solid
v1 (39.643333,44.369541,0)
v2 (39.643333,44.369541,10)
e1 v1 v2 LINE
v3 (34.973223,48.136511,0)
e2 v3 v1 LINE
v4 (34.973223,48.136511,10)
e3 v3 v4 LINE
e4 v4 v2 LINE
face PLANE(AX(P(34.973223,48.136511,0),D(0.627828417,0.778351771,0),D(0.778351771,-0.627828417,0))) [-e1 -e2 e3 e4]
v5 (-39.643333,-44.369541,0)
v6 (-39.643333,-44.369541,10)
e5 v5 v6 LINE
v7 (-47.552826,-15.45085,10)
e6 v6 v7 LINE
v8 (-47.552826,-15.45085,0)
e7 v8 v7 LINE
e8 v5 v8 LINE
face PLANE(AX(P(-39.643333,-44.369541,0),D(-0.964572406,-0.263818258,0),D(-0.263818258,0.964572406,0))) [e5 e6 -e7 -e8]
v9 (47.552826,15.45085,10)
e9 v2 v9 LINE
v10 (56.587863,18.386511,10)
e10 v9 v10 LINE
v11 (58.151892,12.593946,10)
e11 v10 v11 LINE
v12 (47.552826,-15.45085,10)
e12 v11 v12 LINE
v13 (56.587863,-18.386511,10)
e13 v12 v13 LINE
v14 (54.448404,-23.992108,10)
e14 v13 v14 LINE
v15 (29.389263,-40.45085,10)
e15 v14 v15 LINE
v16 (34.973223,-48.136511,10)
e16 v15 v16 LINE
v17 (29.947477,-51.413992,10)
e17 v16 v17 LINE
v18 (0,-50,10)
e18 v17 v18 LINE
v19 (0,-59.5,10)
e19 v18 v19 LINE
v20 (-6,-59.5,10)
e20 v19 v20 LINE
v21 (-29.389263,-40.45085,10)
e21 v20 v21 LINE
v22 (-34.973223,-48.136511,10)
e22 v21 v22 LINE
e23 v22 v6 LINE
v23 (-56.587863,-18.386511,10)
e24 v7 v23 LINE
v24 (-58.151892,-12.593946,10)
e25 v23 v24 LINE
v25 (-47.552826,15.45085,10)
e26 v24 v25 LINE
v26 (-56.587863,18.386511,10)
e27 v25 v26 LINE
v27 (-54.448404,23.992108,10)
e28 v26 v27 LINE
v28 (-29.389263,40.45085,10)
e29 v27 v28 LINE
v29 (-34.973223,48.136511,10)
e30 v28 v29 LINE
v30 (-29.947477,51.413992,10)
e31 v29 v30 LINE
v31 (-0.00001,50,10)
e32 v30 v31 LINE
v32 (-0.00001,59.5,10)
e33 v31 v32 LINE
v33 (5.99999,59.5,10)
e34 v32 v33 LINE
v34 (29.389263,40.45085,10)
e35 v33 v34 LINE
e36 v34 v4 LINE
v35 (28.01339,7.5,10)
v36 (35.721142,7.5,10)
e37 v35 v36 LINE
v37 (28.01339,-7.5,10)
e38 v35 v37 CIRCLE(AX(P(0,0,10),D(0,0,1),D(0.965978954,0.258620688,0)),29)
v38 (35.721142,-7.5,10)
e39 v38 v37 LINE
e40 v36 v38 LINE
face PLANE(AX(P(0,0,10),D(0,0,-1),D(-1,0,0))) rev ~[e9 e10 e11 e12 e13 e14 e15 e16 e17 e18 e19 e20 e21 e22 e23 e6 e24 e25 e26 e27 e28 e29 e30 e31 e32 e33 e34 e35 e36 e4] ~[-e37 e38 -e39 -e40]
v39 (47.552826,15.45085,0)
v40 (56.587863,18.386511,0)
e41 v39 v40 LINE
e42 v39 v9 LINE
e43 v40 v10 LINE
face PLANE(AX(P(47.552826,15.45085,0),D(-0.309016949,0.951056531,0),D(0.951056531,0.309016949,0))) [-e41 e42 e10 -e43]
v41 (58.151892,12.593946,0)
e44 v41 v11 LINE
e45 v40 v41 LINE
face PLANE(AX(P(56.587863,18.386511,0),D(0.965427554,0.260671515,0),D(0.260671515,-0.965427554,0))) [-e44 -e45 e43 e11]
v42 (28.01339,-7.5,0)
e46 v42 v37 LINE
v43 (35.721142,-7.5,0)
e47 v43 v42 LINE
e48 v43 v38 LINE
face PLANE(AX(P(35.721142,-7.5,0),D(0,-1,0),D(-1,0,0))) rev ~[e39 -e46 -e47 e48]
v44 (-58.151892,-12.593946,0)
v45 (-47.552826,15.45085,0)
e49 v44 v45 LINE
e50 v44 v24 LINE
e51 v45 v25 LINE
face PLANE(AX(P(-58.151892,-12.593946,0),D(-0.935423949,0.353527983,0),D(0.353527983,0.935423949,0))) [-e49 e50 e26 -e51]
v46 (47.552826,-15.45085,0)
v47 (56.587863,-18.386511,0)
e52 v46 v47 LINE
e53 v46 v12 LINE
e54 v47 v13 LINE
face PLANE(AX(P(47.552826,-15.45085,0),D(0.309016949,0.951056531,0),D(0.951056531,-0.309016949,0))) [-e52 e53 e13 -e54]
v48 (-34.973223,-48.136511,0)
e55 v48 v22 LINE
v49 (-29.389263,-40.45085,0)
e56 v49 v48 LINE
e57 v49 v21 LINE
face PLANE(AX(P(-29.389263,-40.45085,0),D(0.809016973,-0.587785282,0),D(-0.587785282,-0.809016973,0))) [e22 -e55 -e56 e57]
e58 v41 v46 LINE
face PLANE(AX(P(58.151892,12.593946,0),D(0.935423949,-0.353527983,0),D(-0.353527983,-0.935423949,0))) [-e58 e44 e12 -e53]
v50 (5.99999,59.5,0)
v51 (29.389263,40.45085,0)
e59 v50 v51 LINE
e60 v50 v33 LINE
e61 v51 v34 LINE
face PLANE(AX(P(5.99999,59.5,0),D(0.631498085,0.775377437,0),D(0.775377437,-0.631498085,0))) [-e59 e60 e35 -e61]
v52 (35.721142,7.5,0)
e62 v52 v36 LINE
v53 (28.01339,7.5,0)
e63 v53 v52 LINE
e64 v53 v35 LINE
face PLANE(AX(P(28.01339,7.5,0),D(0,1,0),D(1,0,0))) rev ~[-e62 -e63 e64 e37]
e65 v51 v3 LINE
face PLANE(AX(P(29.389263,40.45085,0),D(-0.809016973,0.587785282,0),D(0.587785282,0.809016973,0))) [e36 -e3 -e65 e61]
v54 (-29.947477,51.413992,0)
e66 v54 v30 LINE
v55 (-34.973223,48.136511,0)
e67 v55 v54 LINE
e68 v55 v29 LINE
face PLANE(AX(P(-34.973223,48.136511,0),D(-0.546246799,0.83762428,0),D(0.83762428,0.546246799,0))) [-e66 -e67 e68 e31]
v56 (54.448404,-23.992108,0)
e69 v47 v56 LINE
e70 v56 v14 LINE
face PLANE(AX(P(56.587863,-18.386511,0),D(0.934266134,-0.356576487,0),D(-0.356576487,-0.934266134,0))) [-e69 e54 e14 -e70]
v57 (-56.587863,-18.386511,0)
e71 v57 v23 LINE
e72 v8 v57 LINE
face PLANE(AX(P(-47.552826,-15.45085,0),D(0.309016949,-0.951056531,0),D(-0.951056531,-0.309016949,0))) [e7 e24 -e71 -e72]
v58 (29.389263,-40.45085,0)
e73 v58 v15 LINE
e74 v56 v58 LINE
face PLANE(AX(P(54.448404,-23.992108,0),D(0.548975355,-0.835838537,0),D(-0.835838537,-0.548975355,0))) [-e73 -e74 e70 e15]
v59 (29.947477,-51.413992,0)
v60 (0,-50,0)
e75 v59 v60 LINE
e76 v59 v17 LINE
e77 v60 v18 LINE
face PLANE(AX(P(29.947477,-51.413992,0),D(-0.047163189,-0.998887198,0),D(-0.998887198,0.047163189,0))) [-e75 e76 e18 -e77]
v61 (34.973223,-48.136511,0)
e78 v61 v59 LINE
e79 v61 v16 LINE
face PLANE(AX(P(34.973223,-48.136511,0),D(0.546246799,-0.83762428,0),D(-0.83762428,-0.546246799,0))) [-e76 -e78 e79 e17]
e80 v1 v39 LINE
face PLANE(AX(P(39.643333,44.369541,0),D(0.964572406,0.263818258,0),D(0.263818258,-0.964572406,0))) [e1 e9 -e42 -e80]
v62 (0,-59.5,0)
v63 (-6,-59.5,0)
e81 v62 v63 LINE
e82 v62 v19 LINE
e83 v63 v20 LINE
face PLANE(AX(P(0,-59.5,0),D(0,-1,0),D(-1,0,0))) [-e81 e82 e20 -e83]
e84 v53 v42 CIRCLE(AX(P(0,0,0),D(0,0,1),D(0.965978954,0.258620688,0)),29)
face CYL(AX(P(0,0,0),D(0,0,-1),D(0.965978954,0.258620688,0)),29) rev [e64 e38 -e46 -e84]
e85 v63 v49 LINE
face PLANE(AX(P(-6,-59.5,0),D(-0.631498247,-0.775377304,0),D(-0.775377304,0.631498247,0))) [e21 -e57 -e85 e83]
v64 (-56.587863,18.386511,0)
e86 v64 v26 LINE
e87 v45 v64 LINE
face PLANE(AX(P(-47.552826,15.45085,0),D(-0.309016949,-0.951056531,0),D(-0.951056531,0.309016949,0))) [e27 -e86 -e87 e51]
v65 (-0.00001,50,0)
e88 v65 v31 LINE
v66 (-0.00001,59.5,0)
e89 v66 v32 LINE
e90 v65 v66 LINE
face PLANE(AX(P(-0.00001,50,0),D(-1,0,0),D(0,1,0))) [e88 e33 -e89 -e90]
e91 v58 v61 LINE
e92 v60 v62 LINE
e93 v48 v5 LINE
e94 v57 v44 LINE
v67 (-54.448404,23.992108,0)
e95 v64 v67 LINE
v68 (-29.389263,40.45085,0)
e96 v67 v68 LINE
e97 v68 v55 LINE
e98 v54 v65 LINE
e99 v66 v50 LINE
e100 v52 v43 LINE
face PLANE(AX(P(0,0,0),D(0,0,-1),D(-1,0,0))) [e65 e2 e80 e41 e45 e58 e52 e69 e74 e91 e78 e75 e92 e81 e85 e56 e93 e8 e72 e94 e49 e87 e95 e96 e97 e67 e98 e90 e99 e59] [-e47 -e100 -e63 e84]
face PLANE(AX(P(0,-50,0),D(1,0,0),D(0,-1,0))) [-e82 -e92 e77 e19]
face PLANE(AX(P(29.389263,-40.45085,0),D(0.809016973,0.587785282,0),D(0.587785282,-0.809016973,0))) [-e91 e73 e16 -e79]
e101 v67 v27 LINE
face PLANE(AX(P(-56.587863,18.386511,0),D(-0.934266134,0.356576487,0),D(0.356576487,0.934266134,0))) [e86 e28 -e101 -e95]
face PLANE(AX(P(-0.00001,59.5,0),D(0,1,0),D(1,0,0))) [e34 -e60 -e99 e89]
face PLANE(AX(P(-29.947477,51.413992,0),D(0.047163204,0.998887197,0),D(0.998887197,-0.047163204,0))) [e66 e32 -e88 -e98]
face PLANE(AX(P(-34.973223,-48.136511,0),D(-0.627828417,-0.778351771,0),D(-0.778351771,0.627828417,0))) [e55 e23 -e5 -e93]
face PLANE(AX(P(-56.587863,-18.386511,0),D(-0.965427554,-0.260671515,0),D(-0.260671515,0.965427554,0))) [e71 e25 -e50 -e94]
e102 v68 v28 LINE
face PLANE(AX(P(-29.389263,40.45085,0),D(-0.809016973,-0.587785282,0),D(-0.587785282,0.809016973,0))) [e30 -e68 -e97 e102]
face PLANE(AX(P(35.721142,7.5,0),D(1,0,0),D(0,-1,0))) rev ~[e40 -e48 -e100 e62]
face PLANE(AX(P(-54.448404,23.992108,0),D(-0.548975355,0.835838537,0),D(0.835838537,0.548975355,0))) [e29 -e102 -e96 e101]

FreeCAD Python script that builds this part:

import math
import FreeCAD as App
import Part
import Sketcher
from FreeCAD import Vector
Q = App.Units.Quantity

doc = App.newDocument("Part")
body = doc.addObject("PartDesign::Body", "Body")

# Sketch on XY plane
sketch1 = body.newObject("Sketcher::SketchObject", "Sketch")
sketch1.AttachmentSupport = (doc.getObject("XY_Plane"), [""])
sketch1.MapMode = "FlatFace"
sketch1.addGeometry([
    Part.LineSegment(Vector(6, 60, 0), Vector(0, 60, 0)),  # 0
    Part.LineSegment(Vector(0, 60, 0), Vector(0, 50, 0)),  # 1
    Part.LineSegment(Vector(0, 50, 0), Vector(-30, 51, 0)),  # 2
    Part.LineSegment(Vector(-30, 51, 0), Vector(-35, 48, 0)),  # 3
    Part.LineSegment(Vector(-35, 48, 0), Vector(-29, 40, 0)),  # 4
    Part.LineSegment(Vector(-29, 40, 0), Vector(-54, 24, 0)),  # 5
    Part.LineSegment(Vector(-54, 24, 0), Vector(-57, 18, 0)),  # 6
    Part.LineSegment(Vector(-57, 18, 0), Vector(-48, 15, 0)),  # 7
    Part.LineSegment(Vector(-48, 15, 0), Vector(-58, -13, 0)),  # 8
    Part.LineSegment(Vector(-58, -13, 0), Vector(-57, -18, 0)),  # 9
    Part.LineSegment(Vector(-57, -18, 0), Vector(-48, -15, 0)),  # 10
    Part.LineSegment(Vector(-48, -15, 0), Vector(-40, -44, 0)),  # 11
    Part.LineSegment(Vector(-40, -44, 0), Vector(-35, -48, 0)),  # 12
    Part.LineSegment(Vector(-35, -48, 0), Vector(-29, -40, 0)),  # 13
    Part.LineSegment(Vector(-29, -40, 0), Vector(-6, -60, 0)),  # 14
    Part.LineSegment(Vector(-6, -60, 0), Vector(0, -60, 0)),  # 15
    Part.LineSegment(Vector(0, -60, 0), Vector(0, -50, 0)),  # 16
    Part.LineSegment(Vector(0, -50, 0), Vector(30, -51, 0)),  # 17
    Part.LineSegment(Vector(30, -51, 0), Vector(35, -48, 0)),  # 18
    Part.LineSegment(Vector(35, -48, 0), Vector(29, -40, 0)),  # 19
    Part.LineSegment(Vector(29, -40, 0), Vector(54, -24, 0)),  # 20
    Part.LineSegment(Vector(54, -24, 0), Vector(57, -18, 0)),  # 21
    Part.LineSegment(Vector(57, -18, 0), Vector(48, -15, 0)),  # 22
    Part.LineSegment(Vector(48, -15, 0), Vector(58, 13, 0)),  # 23
    Part.LineSegment(Vector(58, 13, 0), Vector(57, 18, 0)),  # 24
    Part.LineSegment(Vector(57, 18, 0), Vector(48, 15, 0)),  # 25
    Part.LineSegment(Vector(48, 15, 0), Vector(40, 44, 0)),  # 26
    Part.LineSegment(Vector(40, 44, 0), Vector(35, 48, 0)),  # 27
    Part.LineSegment(Vector(35, 48, 0), Vector(29, 40, 0)),  # 28
    Part.LineSegment(Vector(29, 40, 0), Vector(6, 60, 0)),  # 29
    Part.LineSegment(Vector(28, 8, 0), Vector(36, 8, 0)),  # 30
    Part.LineSegment(Vector(36, 8, 0), Vector(36, -8, 0)),  # 31
    Part.LineSegment(Vector(36, -8, 0), Vector(28, -8, 0)),  # 32
    Part.ArcOfCircle(Part.Circle(Vector(0, 0, 0), Vector(0, 0, 1), 29), math.radians(15), math.radians(345)),  # 33
], False)
sketch1.addConstraint([
    Sketcher.Constraint("Coincident", 0, 2, 1, 1),
    Sketcher.Constraint("Coincident", 1, 2, 2, 1),
    Sketcher.Constraint("Coincident", 2, 2, 3, 1),
    Sketcher.Constraint("Coincident", 3, 2, 4, 1),
    Sketcher.Constraint("Coincident", 4, 2, 5, 1),
    Sketcher.Constraint("Coincident", 5, 2, 6, 1),
    Sketcher.Constraint("Coincident", 6, 2, 7, 1),
    Sketcher.Constraint("Coincident", 7, 2, 8, 1),
    Sketcher.Constraint("Coincident", 8, 2, 9, 1),
    Sketcher.Constraint("Coincident", 9, 2, 10, 1),
    Sketcher.Constraint("Coincident", 10, 2, 11, 1),
    Sketcher.Constraint("Coincident", 11, 2, 12, 1),
    Sketcher.Constraint("Coincident", 12, 2, 13, 1),
    Sketcher.Constraint("Coincident", 13, 2, 14, 1),
    Sketcher.Constraint("Coincident", 14, 2, 15, 1),
    Sketcher.Constraint("Coincident", 15, 2, 16, 1),
    Sketcher.Constraint("Coincident", 16, 2, 17, 1),
    Sketcher.Constraint("Coincident", 17, 2, 18, 1),
    Sketcher.Constraint("Coincident", 18, 2, 19, 1),
    Sketcher.Constraint("Coincident", 19, 2, 20, 1),
    Sketcher.Constraint("Coincident", 20, 2, 21, 1),
    Sketcher.Constraint("Coincident", 21, 2, 22, 1),
    Sketcher.Constraint("Coincident", 22, 2, 23, 1),
    Sketcher.Constraint("Coincident", 23, 2, 24, 1),
    Sketcher.Constraint("Coincident", 24, 2, 25, 1),
    Sketcher.Constraint("Coincident", 25, 2, 26, 1),
    Sketcher.Constraint("Coincident", 26, 2, 27, 1),
    Sketcher.Constraint("Coincident", 27, 2, 28, 1),
    Sketcher.Constraint("Coincident", 28, 2, 29, 1),
    Sketcher.Constraint("Coincident", 29, 2, 0, 1),
    Sketcher.Constraint("Coincident", 30, 2, 31, 1),
    Sketcher.Constraint("Coincident", 31, 2, 32, 1),
    Sketcher.Constraint("Coincident", 32, 2, 33, 2),
    Sketcher.Constraint("Coincident", 33, 1, 30, 1),
    Sketcher.Constraint("Horizontal", 0),
    Sketcher.Constraint("Vertical", 1),
    Sketcher.Constraint("Horizontal", 15),
    Sketcher.Constraint("Vertical", 16),
    Sketcher.Constraint("Horizontal", 30),
    Sketcher.Constraint("Vertical", 31),
    Sketcher.Constraint("Horizontal", 32),
    Sketcher.Constraint("Coincident", 33, 3, -1, 1),
    Sketcher.Constraint("Symmetric", 2, 2, 17, 2, -1, 1),
    Sketcher.Constraint("Symmetric", 3, 2, 18, 2, -1, 1),
    Sketcher.Constraint("Symmetric", 4, 2, 19, 2, -1, 1),
    Sketcher.Constraint("Symmetric", 5, 2, 20, 2, -1, 1),
    Sketcher.Constraint("Symmetric", 6, 2, 21, 2, -1, 1),
    Sketcher.Constraint("Symmetric", 7, 2, 22, 2, -1, 1),
    Sketcher.Constraint("Symmetric", 8, 2, 23, 2, -1, 1),
    Sketcher.Constraint("Symmetric", 9, 2, 24, 2, -1, 1),
    Sketcher.Constraint("Symmetric", 10, 2, 25, 2, -1, 1),
    Sketcher.Constraint("Symmetric", 11, 2, 26, 2, -1, 1),
    Sketcher.Constraint("Symmetric", 12, 2, 27, 2, -1, 1),
    Sketcher.Constraint("Symmetric", 13, 2, 28, 2, -1, 1),
    Sketcher.Constraint("Symmetric", 14, 2, 29, 2, -1, 1),
    Sketcher.Constraint("Symmetric", 12, 2, 18, 2, -2),
    Sketcher.Constraint("Symmetric", 13, 2, 19, 2, -2),
    Sketcher.Constraint("Symmetric", 9, 2, 21, 2, -2),
    Sketcher.Constraint("Symmetric", 10, 2, 22, 2, -2),
    Sketcher.Constraint("PointOnObject", 15, 2, -2),
    Sketcher.Constraint("Parallel", 2, 17),
    Sketcher.Constraint("Vertical", 32, 2, 33, 1),
    Sketcher.Constraint("Equal", 0, 15),
    Sketcher.Constraint("Equal", 3, 6),
    Sketcher.Constraint("Equal", 4, 7),
    Sketcher.Constraint("Equal", 5, 8),
    Sketcher.Constraint("Equal", 6, 9),
    Sketcher.Constraint("Equal", 8, 11),
    Sketcher.Constraint("Equal", 9, 12),
    Sketcher.Constraint("Equal", 11, 17),
    Sketcher.Constraint("Radius", 33, Q("29 mm")),
    Sketcher.Constraint("DistanceX", 0, 2, 0, 1, Q("6 mm")),
    Sketcher.Constraint("DistanceY", 31, 2, 31, 1, Q("15 mm")),
    Sketcher.Constraint("Angle", 4, Q("-53.999998 deg")),
    Sketcher.Constraint("Angle", 7, Q("-17.999997 deg")),
    Sketcher.Constraint("Distance", 3, Q("6 mm")),
    Sketcher.Constraint("DistanceY", 1, 2, 1, 1, Q("9.5 mm")),
    Sketcher.Constraint("DistanceY", -1, 1, 1, 2, Q("50 mm")),
    Sketcher.Constraint("DistanceY", 7, 2, 4, 2, Q("25 mm")),
    Sketcher.Constraint("Distance", 4, Q("9.5 mm")),
    Sketcher.Constraint("DistanceX", 30, 1, 30, 2, Q("7.707752 mm")),
    Sketcher.Constraint("DistanceX", 6, 2, 4, 2, Q("27.1986 mm")),
    Sketcher.Constraint("DistanceY", 10, 2, 7, 2, Q("30.9017 mm")),
    Sketcher.Constraint("Distance", 2, Q("29.98083 mm")),
    Sketcher.Constraint("Distance", 14, Q("30.165009 mm")),
])
pad1 = body.newObject("PartDesign::Pad", "Pad")
pad1.Profile = sketch1
pad1.Length = 10

doc.recompute()
